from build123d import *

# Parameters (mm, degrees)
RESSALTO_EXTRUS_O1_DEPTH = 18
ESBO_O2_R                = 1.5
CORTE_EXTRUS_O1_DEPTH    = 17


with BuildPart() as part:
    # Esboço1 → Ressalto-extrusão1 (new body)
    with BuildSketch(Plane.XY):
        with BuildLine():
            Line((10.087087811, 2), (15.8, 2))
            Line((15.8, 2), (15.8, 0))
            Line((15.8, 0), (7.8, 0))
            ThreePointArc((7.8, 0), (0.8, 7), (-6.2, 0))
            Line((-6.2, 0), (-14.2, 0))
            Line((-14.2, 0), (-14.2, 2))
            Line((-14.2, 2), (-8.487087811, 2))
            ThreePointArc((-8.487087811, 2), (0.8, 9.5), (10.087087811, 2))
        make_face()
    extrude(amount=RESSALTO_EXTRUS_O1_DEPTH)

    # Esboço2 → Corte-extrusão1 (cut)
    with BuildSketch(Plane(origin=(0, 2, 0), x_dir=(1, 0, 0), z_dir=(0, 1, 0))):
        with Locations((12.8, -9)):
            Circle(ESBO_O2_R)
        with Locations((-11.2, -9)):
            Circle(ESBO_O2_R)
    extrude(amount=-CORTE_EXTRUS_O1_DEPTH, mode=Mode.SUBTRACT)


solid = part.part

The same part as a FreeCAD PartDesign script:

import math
import FreeCAD as App
import Part
import Sketcher

V = App.Vector
Q = App.Units.Quantity

doc = App.newDocument("Part")
body = doc.addObject("PartDesign::Body", "Body")

# Sketch on XY plane
sketch1 = body.newObject("Sketcher::SketchObject", "Sketch")
sketch1.AttachmentSupport = (doc.getObject("XY_Plane"), [""])
sketch1.MapMode = "FlatFace"
sketch1.addGeometry([
    Part.LineSegment(V(15.8, 2, 0), V(10.1, 2, 0)),  # 0
    Part.ArcOfCircle(Part.Circle(V(0.8, 0, 0), V(0, 0, 1), 9.5), math.radians(12), math.radians(168)),  # 1
    Part.LineSegment(V(-8.5, 2, 0), V(-14.2, 2, 0)),  # 2
    Part.LineSegment(V(-14.2, 2, 0), V(-14.2, 0, 0)),  # 3
    Part.LineSegment(V(-14.2, 0, 0), V(-6.2, 0, 0)),  # 4
    Part.ArcOfCircle(Part.Circle(V(0.8, 0, 0), V(0, 0, 1), 7), math.radians(0), math.radians(180)),  # 5
    Part.LineSegment(V(7.8, 0, 0), V(15.8, 0, 0)),  # 6
    Part.LineSegment(V(15.8, 0, 0), V(15.8, 2, 0)),  # 7
], False)
sketch1.addConstraint([
    Sketcher.Constraint("Coincident", 0, 2, 1, 1),
    Sketcher.Constraint("Coincident", 1, 2, 2, 1),
    Sketcher.Constraint("Coincident", 2, 2, 3, 1),
    Sketcher.Constraint("Coincident", 3, 2, 4, 1),
    Sketcher.Constraint("Coincident", 4, 2, 5, 2),
    Sketcher.Constraint("Coincident", 5, 1, 6, 1),
    Sketcher.Constraint("Coincident", 6, 2, 7, 1),
    Sketcher.Constraint("Coincident", 7, 2, 0, 1),
    Sketcher.Constraint("Horizontal", 0),
    Sketcher.Constraint("Horizontal", 2),
    Sketcher.Constraint("Vertical", 3),
    Sketcher.Constraint("Horizontal", 4),
    Sketcher.Constraint("Horizontal", 6),
    Sketcher.Constraint("Vertical", 7),
    Sketcher.Constraint("Coincident", 5, 3, 1, 3),
    Sketcher.Constraint("PointOnObject", 1, 3, -1),
    Sketcher.Constraint("PointOnObject", 3, 2, -1),
    Sketcher.Constraint("PointOnObject", 5, 1, -1),
    Sketcher.Constraint("Horizontal", 0, 2, 1, 2),
    Sketcher.Constraint("Equal", 0, 2),
    Sketcher.Constraint("Radius", 5, Q("7 mm")),
    Sketcher.Constraint("Radius", 1, Q("9.5 mm")),
    Sketcher.Constraint("DistanceX", 4, 1, 4, 2, Q("8 mm")),
    Sketcher.Constraint("DistanceY", 3, 2, 3, 1, Q("2 mm")),
    Sketcher.Constraint("DistanceX", -1, 1, 1, 3, Q("0.8 mm")),
])
pad1 = body.newObject("PartDesign::Pad", "Pad")
pad1.Profile = sketch1
pad1.Length = 18

# Sketch on XZ plane
sketch2 = body.newObject("Sketcher::SketchObject", "Sketch001")
sketch2.AttachmentSupport = (doc.getObject("XZ_Plane"), [""])
sketch2.MapMode = "FlatFace"
sketch2.AttachmentOffset = App.Placement(V(0, 0, -2), App.Rotation())
sketch2.addGeometry([
    Part.Circle(V(12.8, 9, 0), V(0, 0, 1), 1.5),
    Part.Circle(V(-11.2, 9, 0), V(0, 0, 1), 1.5),
], False)
sketch2.addConstraint([
    Sketcher.Constraint("Equal", 0, 1),
    Sketcher.Constraint("Horizontal", 0, 3, 1, 3),
    Sketcher.Constraint("Diameter", 0, Q("3 mm")),
    Sketcher.Constraint("DistanceY", -1, 1, 0, 3, Q("9 mm")),
    Sketcher.Constraint("DistanceX", 1, 3, 0, 3, Q("24 mm")),
    Sketcher.Constraint("DistanceX", -1, 1, 0, 3, Q("12.8 mm")),
])
pocket1 = body.newObject("PartDesign::Pocket", "Pocket")
pocket1.Profile = sketch2
pocket1.Length = 17
pocket1.Reversed = True

doc.recompute()
